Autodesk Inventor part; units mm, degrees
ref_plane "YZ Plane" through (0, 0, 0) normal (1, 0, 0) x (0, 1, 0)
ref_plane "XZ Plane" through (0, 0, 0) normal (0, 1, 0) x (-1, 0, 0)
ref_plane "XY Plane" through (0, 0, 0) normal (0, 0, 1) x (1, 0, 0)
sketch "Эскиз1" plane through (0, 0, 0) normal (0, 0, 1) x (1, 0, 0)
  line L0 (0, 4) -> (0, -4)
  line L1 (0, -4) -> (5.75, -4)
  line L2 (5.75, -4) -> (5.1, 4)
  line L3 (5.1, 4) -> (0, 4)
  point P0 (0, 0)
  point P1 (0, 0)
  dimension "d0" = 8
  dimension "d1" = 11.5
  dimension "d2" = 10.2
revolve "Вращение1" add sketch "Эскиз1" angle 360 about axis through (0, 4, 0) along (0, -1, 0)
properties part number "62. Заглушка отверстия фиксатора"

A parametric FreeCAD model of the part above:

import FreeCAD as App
import Part
import Sketcher
Q = App.Units.Quantity


def add_polygon(sketch, points):
    """Adds a closed chain of lines whose ends are joined by coincident constraints."""
    first, n = sketch.GeometryCount, len(points)
    for a, b in zip(points, points[1:] + points[:1]):
        sketch.addGeometry(Part.LineSegment(App.Vector(*a, 0), App.Vector(*b, 0)), False)
    for i in range(n):
        sketch.addConstraint(Sketcher.Constraint("Coincident", first + i, 2, first + (i + 1) % n, 1))

doc = App.newDocument("Part")
body = doc.addObject("PartDesign::Body", "Body")

# Sketch on XY plane
sketch1 = body.newObject("Sketcher::SketchObject", "Sketch")
sketch1.AttachmentSupport = (doc.getObject("XY_Plane"), [""])
sketch1.MapMode = "FlatFace"
add_polygon(sketch1, [(5, 4), (0, 4), (0, -4), (6, -4)])  # lines 0-3
sketch1.addConstraint([
    Sketcher.Constraint("Horizontal", 0),
    Sketcher.Constraint("Vertical", 1),
    Sketcher.Constraint("Horizontal", 2),
    Sketcher.Constraint("Symmetric", 0, 2, 1, 2, -1, 1),
    Sketcher.Constraint("DistanceY", 1, 2, 1, 1, Q("8 mm")),
    Sketcher.Constraint("DistanceX", 0, 2, 0, 1, Q("5.1 mm")),
    Sketcher.Constraint("DistanceX", 2, 1, 2, 2, Q("5.75 mm")),
])
revolution = body.newObject("PartDesign::Revolution", "Revolution")
revolution.Profile = sketch1
revolution.ReferenceAxis = (sketch1, ["V_Axis"])
revolution.Angle = 360

doc.recompute()
